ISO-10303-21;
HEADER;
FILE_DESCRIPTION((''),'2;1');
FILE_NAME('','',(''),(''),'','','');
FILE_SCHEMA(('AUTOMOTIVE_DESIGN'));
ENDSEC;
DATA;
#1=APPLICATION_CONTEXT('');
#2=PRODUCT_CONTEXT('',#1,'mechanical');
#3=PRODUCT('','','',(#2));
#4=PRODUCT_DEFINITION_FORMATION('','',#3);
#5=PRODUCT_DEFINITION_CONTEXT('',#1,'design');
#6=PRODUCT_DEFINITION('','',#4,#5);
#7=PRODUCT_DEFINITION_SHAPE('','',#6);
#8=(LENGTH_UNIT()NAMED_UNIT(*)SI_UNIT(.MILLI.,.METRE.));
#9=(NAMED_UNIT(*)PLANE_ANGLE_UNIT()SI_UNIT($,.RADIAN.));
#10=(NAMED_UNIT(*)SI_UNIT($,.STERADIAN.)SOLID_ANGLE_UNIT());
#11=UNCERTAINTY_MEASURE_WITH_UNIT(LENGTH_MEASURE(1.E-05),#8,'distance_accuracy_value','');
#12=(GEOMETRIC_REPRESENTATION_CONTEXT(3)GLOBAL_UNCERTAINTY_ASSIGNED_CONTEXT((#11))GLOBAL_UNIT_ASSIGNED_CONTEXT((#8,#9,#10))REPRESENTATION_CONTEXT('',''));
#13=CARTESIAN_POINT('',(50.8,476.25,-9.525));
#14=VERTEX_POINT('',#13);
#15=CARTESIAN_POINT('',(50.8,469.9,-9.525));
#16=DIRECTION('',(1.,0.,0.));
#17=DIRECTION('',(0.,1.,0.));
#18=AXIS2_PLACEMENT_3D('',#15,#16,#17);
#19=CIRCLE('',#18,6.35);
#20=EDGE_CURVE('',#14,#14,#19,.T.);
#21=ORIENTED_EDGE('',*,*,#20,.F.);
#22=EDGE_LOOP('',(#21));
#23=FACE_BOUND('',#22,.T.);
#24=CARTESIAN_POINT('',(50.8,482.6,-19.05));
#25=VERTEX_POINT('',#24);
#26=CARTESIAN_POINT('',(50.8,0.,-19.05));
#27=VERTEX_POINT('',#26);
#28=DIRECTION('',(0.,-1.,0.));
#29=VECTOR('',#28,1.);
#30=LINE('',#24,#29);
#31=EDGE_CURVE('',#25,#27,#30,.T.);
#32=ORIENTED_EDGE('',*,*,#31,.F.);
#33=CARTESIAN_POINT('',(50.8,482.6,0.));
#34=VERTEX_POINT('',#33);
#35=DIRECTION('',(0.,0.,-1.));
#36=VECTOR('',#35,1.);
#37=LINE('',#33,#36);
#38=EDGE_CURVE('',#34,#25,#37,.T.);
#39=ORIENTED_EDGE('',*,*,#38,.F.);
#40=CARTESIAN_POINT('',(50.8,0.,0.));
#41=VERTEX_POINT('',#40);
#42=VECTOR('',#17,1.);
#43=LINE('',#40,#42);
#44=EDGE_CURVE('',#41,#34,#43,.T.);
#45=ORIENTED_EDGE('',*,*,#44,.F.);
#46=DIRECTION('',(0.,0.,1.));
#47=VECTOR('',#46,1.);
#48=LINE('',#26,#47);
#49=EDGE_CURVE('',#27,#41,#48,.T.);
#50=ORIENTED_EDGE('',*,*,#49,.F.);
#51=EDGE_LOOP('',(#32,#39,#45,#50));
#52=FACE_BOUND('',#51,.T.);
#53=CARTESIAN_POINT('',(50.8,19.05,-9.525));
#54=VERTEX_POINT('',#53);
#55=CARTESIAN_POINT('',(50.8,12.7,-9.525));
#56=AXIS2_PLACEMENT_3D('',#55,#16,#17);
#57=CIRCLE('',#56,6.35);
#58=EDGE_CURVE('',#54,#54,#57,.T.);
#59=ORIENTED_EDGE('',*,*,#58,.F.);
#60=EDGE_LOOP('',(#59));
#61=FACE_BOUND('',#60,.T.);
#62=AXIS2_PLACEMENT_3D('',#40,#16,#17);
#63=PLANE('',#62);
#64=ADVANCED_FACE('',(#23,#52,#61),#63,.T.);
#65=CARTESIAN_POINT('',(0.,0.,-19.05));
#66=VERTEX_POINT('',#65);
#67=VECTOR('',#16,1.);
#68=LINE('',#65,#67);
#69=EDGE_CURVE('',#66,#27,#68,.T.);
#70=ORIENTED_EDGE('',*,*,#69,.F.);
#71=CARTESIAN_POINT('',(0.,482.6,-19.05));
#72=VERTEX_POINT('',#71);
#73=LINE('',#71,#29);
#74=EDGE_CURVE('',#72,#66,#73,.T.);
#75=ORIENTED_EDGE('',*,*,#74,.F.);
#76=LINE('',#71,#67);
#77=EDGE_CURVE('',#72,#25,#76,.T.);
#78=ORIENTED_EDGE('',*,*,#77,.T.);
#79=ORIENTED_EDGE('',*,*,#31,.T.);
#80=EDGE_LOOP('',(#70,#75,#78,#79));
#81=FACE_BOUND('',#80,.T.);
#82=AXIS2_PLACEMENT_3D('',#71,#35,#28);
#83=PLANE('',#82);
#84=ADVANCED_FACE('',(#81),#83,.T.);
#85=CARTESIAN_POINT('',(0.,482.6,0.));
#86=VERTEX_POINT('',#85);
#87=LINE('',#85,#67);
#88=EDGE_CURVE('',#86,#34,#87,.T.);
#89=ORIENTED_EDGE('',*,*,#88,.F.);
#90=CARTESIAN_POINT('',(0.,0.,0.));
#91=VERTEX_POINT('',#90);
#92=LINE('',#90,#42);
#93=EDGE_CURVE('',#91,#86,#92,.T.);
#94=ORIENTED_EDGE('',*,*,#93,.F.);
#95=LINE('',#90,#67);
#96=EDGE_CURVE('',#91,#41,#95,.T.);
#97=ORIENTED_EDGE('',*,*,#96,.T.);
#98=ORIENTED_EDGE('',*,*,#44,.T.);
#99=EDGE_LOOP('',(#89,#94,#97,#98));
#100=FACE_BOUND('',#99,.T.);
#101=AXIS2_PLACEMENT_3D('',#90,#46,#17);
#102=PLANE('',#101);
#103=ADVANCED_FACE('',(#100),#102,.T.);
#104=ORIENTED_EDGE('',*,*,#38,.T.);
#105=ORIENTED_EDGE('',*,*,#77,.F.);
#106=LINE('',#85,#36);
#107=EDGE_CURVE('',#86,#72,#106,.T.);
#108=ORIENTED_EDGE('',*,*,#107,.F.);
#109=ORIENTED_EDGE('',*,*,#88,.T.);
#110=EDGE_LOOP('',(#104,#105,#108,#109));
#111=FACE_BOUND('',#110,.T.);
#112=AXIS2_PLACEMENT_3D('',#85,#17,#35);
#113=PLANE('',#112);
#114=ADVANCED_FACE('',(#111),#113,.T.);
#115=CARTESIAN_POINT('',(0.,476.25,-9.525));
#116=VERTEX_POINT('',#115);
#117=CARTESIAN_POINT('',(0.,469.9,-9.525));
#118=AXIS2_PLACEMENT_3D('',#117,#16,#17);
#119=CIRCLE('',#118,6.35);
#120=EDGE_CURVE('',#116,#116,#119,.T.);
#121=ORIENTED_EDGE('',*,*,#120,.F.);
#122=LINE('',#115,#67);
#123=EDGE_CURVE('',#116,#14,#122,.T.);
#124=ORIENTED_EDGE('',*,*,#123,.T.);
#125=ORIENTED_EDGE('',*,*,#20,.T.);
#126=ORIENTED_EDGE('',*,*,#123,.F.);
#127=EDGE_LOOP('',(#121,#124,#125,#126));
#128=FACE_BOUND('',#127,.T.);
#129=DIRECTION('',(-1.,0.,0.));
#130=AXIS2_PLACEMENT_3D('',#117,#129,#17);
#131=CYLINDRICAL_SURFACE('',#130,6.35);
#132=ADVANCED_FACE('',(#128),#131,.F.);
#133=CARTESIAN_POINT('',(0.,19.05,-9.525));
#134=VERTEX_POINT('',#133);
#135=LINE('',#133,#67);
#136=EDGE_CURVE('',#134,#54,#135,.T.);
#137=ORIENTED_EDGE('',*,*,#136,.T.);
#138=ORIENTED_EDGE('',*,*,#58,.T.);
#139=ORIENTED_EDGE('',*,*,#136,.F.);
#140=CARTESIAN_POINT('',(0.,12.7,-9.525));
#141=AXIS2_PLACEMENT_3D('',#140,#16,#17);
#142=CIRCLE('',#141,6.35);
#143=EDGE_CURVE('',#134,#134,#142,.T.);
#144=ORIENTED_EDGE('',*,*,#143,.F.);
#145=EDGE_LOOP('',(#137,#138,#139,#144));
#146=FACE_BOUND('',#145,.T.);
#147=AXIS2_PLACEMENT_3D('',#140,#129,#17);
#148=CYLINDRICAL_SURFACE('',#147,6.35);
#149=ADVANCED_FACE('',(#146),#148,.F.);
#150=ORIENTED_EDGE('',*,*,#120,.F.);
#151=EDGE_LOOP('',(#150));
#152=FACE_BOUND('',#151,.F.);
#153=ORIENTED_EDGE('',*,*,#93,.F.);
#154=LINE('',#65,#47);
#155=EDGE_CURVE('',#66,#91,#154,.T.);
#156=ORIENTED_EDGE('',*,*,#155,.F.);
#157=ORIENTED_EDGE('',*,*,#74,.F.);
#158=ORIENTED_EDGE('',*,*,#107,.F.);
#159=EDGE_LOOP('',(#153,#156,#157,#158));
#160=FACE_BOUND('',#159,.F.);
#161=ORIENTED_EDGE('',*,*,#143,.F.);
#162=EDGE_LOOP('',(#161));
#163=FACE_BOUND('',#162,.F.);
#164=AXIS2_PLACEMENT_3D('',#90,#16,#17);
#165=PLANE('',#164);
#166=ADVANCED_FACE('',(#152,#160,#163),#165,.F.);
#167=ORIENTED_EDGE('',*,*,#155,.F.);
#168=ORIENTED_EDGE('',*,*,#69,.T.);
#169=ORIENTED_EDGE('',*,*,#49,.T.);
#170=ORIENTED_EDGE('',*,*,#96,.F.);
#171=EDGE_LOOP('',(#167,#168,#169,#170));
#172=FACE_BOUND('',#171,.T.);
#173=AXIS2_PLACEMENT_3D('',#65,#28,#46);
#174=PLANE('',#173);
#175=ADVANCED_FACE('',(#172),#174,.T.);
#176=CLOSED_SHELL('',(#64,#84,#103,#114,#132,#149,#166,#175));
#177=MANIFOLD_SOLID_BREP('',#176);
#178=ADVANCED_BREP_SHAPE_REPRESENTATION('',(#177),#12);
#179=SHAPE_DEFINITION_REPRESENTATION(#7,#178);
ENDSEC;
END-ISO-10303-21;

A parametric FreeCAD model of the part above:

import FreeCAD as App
import Part
import Sketcher
from FreeCAD import Vector
Q = App.Units.Quantity

doc = App.newDocument("Part")
params = doc.addObject("Spreadsheet::Sheet", "Params")
for row, (alias, value) in enumerate([
    ("sketch1_diameter", "0.5 in"),
    ("sketch1_width", "19 in"),
    ("sketch1_height", "0.75 in"),
    ("pad1_length", "2 in"),
], start=1):
    params.set(f"A{row}", alias)
    params.set(f"B{row}", "=" + value)
    params.setAlias(f"B{row}", alias)

body = doc.addObject("PartDesign::Body", "Body")

# Sketch on YZ plane
sketch1 = body.newObject("Sketcher::SketchObject", "Sketch")
sketch1.AttachmentSupport = (doc.getObject("YZ_Plane"), [""])
sketch1.MapMode = "FlatFace"
sketch1.addGeometry(Part.LineSegment(Vector(483, 0, 0), Vector(0, 0, 0)), False)
sketch1.addGeometry(Part.LineSegment(Vector(0, 0, 0), Vector(0, -19, 0)), False)
sketch1.addGeometry(Part.LineSegment(Vector(0, -19, 0), Vector(483, -19, 0)), False)
sketch1.addGeometry(Part.LineSegment(Vector(483, -19, 0), Vector(483, 0, 0)), False)
sketch1.addGeometry(Part.Circle(Vector(13, -10, 0), Vector(0, 0, 1), 6), False)
sketch1.addGeometry(Part.Circle(Vector(470, -10, 0), Vector(0, 0, 1), 6), False)
sketch1.addConstraint(Sketcher.Constraint("Coincident", 0, 2, 1, 1))
sketch1.addConstraint(Sketcher.Constraint("Coincident", 1, 2, 2, 1))
sketch1.addConstraint(Sketcher.Constraint("Coincident", 2, 2, 3, 1))
sketch1.addConstraint(Sketcher.Constraint("Coincident", 3, 2, 0, 1))
sketch1.addConstraint(Sketcher.Constraint("Horizontal", 0))
sketch1.addConstraint(Sketcher.Constraint("Vertical", 1))
sketch1.addConstraint(Sketcher.Constraint("Horizontal", 2))
sketch1.addConstraint(Sketcher.Constraint("Vertical", 3))
sketch1.addConstraint(Sketcher.Constraint("Coincident", 0, 2, -1, 1))
sketch1.addConstraint(Sketcher.Constraint("Equal", 4, 5))
sketch1.addConstraint(Sketcher.Constraint("Horizontal", 4, 3, 5, 3))
sketch1.addConstraint(Sketcher.Constraint("Diameter", 4, Q("0.5 in")))
sketch1.addConstraint(Sketcher.Constraint("DistanceX", 0, 2, 0, 1, Q("19 in")))
sketch1.addConstraint(Sketcher.Constraint("DistanceY", 1, 2, 1, 1, Q("0.75 in")))
sketch1.addConstraint(Sketcher.Constraint("DistanceX", -1, 1, 4, 3, Q("0.5 in")))
sketch1.addConstraint(Sketcher.Constraint("DistanceX", 5, 3, 2, 2, Q("0.5 in")))
sketch1.addConstraint(Sketcher.Constraint("DistanceY", 4, 3, -1, 1, Q("0.375 in")))
sketch1.setExpression("Constraints[11]", "Params.sketch1_diameter")
sketch1.setExpression("Constraints[12]", "Params.sketch1_width")
sketch1.setExpression("Constraints[13]", "Params.sketch1_height")
pad1 = body.newObject("PartDesign::Pad", "Pad")
pad1.Profile = sketch1
pad1.setExpression("Length", "Params.pad1_length")

doc.recompute()
